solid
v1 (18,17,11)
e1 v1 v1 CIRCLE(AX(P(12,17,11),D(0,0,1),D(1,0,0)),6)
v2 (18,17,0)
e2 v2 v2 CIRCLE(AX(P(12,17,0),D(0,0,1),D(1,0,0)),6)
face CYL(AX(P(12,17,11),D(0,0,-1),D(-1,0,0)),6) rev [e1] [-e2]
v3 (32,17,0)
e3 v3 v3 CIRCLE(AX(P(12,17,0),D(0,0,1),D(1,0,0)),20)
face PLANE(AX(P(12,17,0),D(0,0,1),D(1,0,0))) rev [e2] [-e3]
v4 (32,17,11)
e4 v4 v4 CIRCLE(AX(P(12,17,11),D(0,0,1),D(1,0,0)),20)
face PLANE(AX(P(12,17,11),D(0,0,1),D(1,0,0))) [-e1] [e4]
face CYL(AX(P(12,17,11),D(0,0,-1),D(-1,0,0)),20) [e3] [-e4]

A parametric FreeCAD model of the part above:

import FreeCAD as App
import Part
import Sketcher

V = App.Vector

doc = App.newDocument("Part")
body = doc.addObject("PartDesign::Body", "Body")

# Sketch on XY plane
sketch1 = doc.addObject("Sketcher::SketchObject", "Sketch")
body.addObject(sketch1)
sketch1.AttachmentSupport = (doc.XY_Plane, [""])
sketch1.MapMode = "FlatFace"
sketch1.addGeometry([
    Part.Circle(V(12, 17, 0), V(0, 0, 1), 20),
    Part.Circle(V(12, 17, 0), V(0, 0, 1), 6),
], False)
sketch1.addConstraint([
    Sketcher.Constraint("Coincident", 1, 3, 0, 3),
    Sketcher.Constraint("Diameter", 0, 40.0),
    Sketcher.Constraint("Diameter", 1, 12.0),
    Sketcher.Constraint("DistanceX", -1, 1, 0, 3, 12.0),
    Sketcher.Constraint("DistanceY", -1, 1, 0, 3, 17.0),
])
pad1 = doc.addObject("PartDesign::Pad", "Pad")
body.addObject(pad1)
pad1.Profile = sketch1
pad1.Length = 11

doc.recompute()
